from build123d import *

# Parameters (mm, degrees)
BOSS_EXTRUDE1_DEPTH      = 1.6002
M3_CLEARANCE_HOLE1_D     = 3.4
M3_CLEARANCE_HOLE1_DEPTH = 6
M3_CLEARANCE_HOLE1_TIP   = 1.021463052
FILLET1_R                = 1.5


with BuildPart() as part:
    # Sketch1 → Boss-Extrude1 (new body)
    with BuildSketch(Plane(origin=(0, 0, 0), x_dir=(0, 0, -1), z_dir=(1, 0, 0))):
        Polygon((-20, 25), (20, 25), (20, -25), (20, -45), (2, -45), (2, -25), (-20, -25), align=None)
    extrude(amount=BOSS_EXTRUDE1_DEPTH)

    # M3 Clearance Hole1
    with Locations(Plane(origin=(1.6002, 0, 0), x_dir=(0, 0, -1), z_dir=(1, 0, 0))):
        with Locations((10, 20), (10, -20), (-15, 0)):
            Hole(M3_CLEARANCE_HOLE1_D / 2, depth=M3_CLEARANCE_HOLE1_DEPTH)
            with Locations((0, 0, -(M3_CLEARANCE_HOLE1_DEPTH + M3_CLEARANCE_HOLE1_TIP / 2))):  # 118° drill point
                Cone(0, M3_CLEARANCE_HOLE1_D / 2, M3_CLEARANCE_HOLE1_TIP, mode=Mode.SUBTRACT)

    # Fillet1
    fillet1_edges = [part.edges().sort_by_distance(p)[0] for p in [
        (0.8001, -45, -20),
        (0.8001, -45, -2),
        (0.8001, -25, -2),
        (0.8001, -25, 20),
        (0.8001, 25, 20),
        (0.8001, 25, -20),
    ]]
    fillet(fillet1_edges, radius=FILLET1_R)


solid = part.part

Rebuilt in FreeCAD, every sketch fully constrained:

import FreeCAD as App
import Part
import Sketcher


def edges_at(feature, points):
    """Names of the edges that pass closest to the given points."""
    edges = feature.Shape.Edges
    near = lambda p: min(range(len(edges)), key=lambda i: edges[i].distToShape(Part.Vertex(*p))[0])
    return sorted({f"Edge{near(p) + 1}" for p in points})

doc = App.newDocument("Part")
body = doc.addObject("PartDesign::Body", "Body")

sketch1 = doc.addObject("Sketcher::SketchObject", "Sketch")
body.addObject(sketch1)
sketch1.AttachmentSupport = (doc.YZ_Plane, [""])
sketch1.MapMode = "FlatFace"
sketch1.addGeometry(Part.LineSegment(App.Vector(25, -20, 0), App.Vector(25, 20, 0)), False)
sketch1.addGeometry(Part.LineSegment(App.Vector(25, 20, 0), App.Vector(-25, 20, 0)), False)
sketch1.addGeometry(Part.LineSegment(App.Vector(-25, 20, 0), App.Vector(-25, -2, 0)), False)
sketch1.addGeometry(Part.LineSegment(App.Vector(-25, -2, 0), App.Vector(-45, -2, 0)), False)
sketch1.addGeometry(Part.LineSegment(App.Vector(-45, -2, 0), App.Vector(-45, -20, 0)), False)
sketch1.addGeometry(Part.LineSegment(App.Vector(-45, -20, 0), App.Vector(25, -20, 0)), False)
sketch1.addConstraint(Sketcher.Constraint("Coincident", 0, 2, 1, 1))
sketch1.addConstraint(Sketcher.Constraint("Coincident", 1, 2, 2, 1))
sketch1.addConstraint(Sketcher.Constraint("Coincident", 2, 2, 3, 1))
sketch1.addConstraint(Sketcher.Constraint("Coincident", 3, 2, 4, 1))
sketch1.addConstraint(Sketcher.Constraint("Coincident", 4, 2, 5, 1))
sketch1.addConstraint(Sketcher.Constraint("Coincident", 5, 2, 0, 1))
sketch1.addConstraint(Sketcher.Constraint("Vertical", 0))
sketch1.addConstraint(Sketcher.Constraint("Horizontal", 1))
sketch1.addConstraint(Sketcher.Constraint("Vertical", 2))
sketch1.addConstraint(Sketcher.Constraint("Horizontal", 3))
sketch1.addConstraint(Sketcher.Constraint("Vertical", 4))
sketch1.addConstraint(Sketcher.Constraint("Horizontal", 5))
sketch1.addConstraint(Sketcher.Constraint("Symmetric", 1, 2, 5, 2, -1, 1))
sketch1.addConstraint(Sketcher.Constraint("DistanceX", 1, 2, 1, 1, 50.0))
sketch1.addConstraint(Sketcher.Constraint("DistanceX", 3, 2, 3, 1, 20.0))
sketch1.addConstraint(Sketcher.Constraint("DistanceY", 0, 1, 0, 2, 40.0))
sketch1.addConstraint(Sketcher.Constraint("DistanceY", 2, 2, 2, 1, 22.0))
pad1 = doc.addObject("PartDesign::Pad", "Pad")
body.addObject(pad1)
pad1.Profile = sketch1
pad1.Length = 1.6002

sketch2 = doc.addObject("Sketcher::SketchObject", "Sketch001")
body.addObject(sketch2)
sketch2.AttachmentSupport = (doc.YZ_Plane, [""])
sketch2.MapMode = "FlatFace"
sketch2.AttachmentOffset = App.Placement(App.Vector(0, 0, 1.6002), App.Rotation())
sketch2.addGeometry(Part.Circle(App.Vector(20, -10, 0), App.Vector(0, 0, 1), 1.7), False)
sketch2.addGeometry(Part.Circle(App.Vector(-20, -10, 0), App.Vector(0, 0, 1), 1.7), False)
sketch2.addGeometry(Part.Circle(App.Vector(0, 15, 0), App.Vector(0, 0, 1), 1.7), False)
sketch2.addConstraint(Sketcher.Constraint("Equal", 0, 1))
sketch2.addConstraint(Sketcher.Constraint("Equal", 1, 2))
sketch2.addConstraint(Sketcher.Constraint("Symmetric", 0, 3, 1, 3, -2))
sketch2.addConstraint(Sketcher.Constraint("PointOnObject", 2, 3, -2))
sketch2.addConstraint(Sketcher.Constraint("Diameter", 0, 3.4))
sketch2.addConstraint(Sketcher.Constraint("DistanceX", -1, 1, 0, 3, 20.0))
sketch2.addConstraint(Sketcher.Constraint("DistanceY", 0, 3, -1, 1, 10.0))
sketch2.addConstraint(Sketcher.Constraint("DistanceY", -1, 1, 2, 3, 15.0))
doc.recompute()
hole = doc.addObject("PartDesign::Hole", "Hole")
body.addObject(hole)
hole.Profile = sketch2
hole.ThreadType = "None"
hole.Diameter = 3.4
hole.DepthType = "Dimension"
hole.Depth = 6
hole.DrillPoint = "Angled"
hole.DrillPointAngle = 118
doc.recompute()

fillet = doc.addObject("PartDesign::Fillet", "Fillet")
body.addObject(fillet)
fillet.Base = (hole, edges_at(hole, [
    (0.8, -45, -20),
    (0.8, -45, -2),
    (0.8, -25, -2),
    (0.8, -25, 20),
    (0.8, 25, 20),
    (0.8, 25, -20),
]))
fillet.Radius = 1.5

doc.recompute()
